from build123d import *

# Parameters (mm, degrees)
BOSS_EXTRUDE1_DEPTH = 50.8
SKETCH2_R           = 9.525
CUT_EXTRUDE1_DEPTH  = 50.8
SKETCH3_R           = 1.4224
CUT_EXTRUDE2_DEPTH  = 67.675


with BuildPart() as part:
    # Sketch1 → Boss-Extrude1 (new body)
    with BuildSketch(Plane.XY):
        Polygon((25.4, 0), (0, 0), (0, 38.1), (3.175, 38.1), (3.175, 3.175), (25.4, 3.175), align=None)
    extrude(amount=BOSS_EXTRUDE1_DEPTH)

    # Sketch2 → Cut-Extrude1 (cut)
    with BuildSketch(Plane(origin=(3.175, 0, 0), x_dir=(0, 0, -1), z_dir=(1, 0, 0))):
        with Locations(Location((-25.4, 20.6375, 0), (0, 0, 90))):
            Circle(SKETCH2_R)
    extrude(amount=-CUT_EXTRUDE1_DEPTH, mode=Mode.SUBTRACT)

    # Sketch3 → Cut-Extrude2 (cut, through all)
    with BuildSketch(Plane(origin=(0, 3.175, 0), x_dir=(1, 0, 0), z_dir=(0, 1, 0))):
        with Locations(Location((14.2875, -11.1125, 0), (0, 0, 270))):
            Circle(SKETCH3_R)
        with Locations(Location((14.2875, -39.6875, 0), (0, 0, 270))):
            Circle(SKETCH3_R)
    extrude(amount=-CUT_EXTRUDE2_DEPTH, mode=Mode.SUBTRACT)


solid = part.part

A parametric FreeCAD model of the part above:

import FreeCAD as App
import Part
import Sketcher
Q = App.Units.Quantity

doc = App.newDocument("Part")
body = doc.addObject("PartDesign::Body", "Body")

sketch1 = body.newObject("Sketcher::SketchObject", "Sketch")
sketch1.AttachmentSupport = (doc.getObject("XY_Plane"), [""])
sketch1.MapMode = "FlatFace"
sketch1.addGeometry([
    Part.LineSegment(App.Vector(0, 0, 0), App.Vector(25.4, 0, 0)),
    Part.LineSegment(App.Vector(25.4, 0, 0), App.Vector(25.4, 3.2, 0)),
    Part.LineSegment(App.Vector(25.4, 3.2, 0), App.Vector(3.2, 3.2, 0)),
    Part.LineSegment(App.Vector(3.2, 3.2, 0), App.Vector(3.2, 38.1, 0)),
    Part.LineSegment(App.Vector(3.2, 38.1, 0), App.Vector(0, 38.1, 0)),
    Part.LineSegment(App.Vector(0, 38.1, 0), App.Vector(0, 0, 0)),
], False)
sketch1.addConstraint([
    Sketcher.Constraint("Coincident", 0, 2, 1, 1),
    Sketcher.Constraint("Coincident", 1, 2, 2, 1),
    Sketcher.Constraint("Coincident", 2, 2, 3, 1),
    Sketcher.Constraint("Coincident", 3, 2, 4, 1),
    Sketcher.Constraint("Coincident", 4, 2, 5, 1),
    Sketcher.Constraint("Coincident", 5, 2, 0, 1),
    Sketcher.Constraint("Horizontal", 0),
    Sketcher.Constraint("Vertical", 1),
    Sketcher.Constraint("Horizontal", 2),
    Sketcher.Constraint("Vertical", 3),
    Sketcher.Constraint("Horizontal", 4),
    Sketcher.Constraint("Vertical", 5),
    Sketcher.Constraint("Coincident", 5, 2, -1, 1),
    Sketcher.Constraint("Equal", 4, 1),
    Sketcher.Constraint("DistanceX", 0, 1, 0, 2, Q("1 in")),
    Sketcher.Constraint("DistanceY", 5, 2, 5, 1, Q("1.5 in")),
    Sketcher.Constraint("DistanceX", 2, 2, 2, 1, Q("0.875 in")),
])
pad1 = body.newObject("PartDesign::Pad", "Pad")
pad1.Profile = sketch1
pad1.Length = Q("2 in")

sketch2 = body.newObject("Sketcher::SketchObject", "Sketch001")
sketch2.AttachmentSupport = (doc.getObject("YZ_Plane"), [""])
sketch2.MapMode = "FlatFace"
sketch2.AttachmentOffset = App.Placement(App.Vector(0, 0, 0.125 * 25.4), App.Rotation())
sketch2.addGeometry(Part.Circle(App.Vector(21, 25, 0), App.Vector(0, 0, 1), 10), False)
sketch2.addConstraint([
    Sketcher.Constraint("Diameter", 0, Q("0.75 in")),
    Sketcher.Constraint("DistanceY", -1, 1, 0, 3, Q("1 in")),
    Sketcher.Constraint("DistanceX", -1, 1, 0, 3, Q("0.8125 in")),
])
pocket1 = body.newObject("PartDesign::Pocket", "Pocket")
pocket1.Profile = sketch2
pocket1.Length = Q("2 in")

sketch3 = body.newObject("Sketcher::SketchObject", "Sketch002")
sketch3.AttachmentSupport = (doc.getObject("XZ_Plane"), [""])
sketch3.MapMode = "FlatFace"
sketch3.AttachmentOffset = App.Placement(App.Vector(0, 0, -0.125 * 25.4), App.Rotation())
sketch3.addGeometry([
    Part.Circle(App.Vector(14.3, 11.1, 0), App.Vector(0, 0, 1), 1.4),
    Part.Circle(App.Vector(14.3, 39.7, 0), App.Vector(0, 0, 1), 1.4),
], False)
sketch3.addConstraint([
    Sketcher.Constraint("Equal", 0, 1),
    Sketcher.Constraint("Vertical", 0, 3, 1, 3),
    Sketcher.Constraint("Diameter", 0, Q("0.112 in")),
    Sketcher.Constraint("DistanceX", -1, 1, 0, 3, Q("0.5625 in")),
    Sketcher.Constraint("DistanceY", -1, 1, 0, 3, Q("0.4375 in")),
    Sketcher.Constraint("DistanceY", -1, 1, 1, 3, Q("1.5625 in")),
])
pocket2 = body.newObject("PartDesign::Pocket", "Pocket001")
pocket2.Profile = sketch3
pocket2.Type = "ThroughAll"
pocket2.Reversed = True

doc.recompute()
